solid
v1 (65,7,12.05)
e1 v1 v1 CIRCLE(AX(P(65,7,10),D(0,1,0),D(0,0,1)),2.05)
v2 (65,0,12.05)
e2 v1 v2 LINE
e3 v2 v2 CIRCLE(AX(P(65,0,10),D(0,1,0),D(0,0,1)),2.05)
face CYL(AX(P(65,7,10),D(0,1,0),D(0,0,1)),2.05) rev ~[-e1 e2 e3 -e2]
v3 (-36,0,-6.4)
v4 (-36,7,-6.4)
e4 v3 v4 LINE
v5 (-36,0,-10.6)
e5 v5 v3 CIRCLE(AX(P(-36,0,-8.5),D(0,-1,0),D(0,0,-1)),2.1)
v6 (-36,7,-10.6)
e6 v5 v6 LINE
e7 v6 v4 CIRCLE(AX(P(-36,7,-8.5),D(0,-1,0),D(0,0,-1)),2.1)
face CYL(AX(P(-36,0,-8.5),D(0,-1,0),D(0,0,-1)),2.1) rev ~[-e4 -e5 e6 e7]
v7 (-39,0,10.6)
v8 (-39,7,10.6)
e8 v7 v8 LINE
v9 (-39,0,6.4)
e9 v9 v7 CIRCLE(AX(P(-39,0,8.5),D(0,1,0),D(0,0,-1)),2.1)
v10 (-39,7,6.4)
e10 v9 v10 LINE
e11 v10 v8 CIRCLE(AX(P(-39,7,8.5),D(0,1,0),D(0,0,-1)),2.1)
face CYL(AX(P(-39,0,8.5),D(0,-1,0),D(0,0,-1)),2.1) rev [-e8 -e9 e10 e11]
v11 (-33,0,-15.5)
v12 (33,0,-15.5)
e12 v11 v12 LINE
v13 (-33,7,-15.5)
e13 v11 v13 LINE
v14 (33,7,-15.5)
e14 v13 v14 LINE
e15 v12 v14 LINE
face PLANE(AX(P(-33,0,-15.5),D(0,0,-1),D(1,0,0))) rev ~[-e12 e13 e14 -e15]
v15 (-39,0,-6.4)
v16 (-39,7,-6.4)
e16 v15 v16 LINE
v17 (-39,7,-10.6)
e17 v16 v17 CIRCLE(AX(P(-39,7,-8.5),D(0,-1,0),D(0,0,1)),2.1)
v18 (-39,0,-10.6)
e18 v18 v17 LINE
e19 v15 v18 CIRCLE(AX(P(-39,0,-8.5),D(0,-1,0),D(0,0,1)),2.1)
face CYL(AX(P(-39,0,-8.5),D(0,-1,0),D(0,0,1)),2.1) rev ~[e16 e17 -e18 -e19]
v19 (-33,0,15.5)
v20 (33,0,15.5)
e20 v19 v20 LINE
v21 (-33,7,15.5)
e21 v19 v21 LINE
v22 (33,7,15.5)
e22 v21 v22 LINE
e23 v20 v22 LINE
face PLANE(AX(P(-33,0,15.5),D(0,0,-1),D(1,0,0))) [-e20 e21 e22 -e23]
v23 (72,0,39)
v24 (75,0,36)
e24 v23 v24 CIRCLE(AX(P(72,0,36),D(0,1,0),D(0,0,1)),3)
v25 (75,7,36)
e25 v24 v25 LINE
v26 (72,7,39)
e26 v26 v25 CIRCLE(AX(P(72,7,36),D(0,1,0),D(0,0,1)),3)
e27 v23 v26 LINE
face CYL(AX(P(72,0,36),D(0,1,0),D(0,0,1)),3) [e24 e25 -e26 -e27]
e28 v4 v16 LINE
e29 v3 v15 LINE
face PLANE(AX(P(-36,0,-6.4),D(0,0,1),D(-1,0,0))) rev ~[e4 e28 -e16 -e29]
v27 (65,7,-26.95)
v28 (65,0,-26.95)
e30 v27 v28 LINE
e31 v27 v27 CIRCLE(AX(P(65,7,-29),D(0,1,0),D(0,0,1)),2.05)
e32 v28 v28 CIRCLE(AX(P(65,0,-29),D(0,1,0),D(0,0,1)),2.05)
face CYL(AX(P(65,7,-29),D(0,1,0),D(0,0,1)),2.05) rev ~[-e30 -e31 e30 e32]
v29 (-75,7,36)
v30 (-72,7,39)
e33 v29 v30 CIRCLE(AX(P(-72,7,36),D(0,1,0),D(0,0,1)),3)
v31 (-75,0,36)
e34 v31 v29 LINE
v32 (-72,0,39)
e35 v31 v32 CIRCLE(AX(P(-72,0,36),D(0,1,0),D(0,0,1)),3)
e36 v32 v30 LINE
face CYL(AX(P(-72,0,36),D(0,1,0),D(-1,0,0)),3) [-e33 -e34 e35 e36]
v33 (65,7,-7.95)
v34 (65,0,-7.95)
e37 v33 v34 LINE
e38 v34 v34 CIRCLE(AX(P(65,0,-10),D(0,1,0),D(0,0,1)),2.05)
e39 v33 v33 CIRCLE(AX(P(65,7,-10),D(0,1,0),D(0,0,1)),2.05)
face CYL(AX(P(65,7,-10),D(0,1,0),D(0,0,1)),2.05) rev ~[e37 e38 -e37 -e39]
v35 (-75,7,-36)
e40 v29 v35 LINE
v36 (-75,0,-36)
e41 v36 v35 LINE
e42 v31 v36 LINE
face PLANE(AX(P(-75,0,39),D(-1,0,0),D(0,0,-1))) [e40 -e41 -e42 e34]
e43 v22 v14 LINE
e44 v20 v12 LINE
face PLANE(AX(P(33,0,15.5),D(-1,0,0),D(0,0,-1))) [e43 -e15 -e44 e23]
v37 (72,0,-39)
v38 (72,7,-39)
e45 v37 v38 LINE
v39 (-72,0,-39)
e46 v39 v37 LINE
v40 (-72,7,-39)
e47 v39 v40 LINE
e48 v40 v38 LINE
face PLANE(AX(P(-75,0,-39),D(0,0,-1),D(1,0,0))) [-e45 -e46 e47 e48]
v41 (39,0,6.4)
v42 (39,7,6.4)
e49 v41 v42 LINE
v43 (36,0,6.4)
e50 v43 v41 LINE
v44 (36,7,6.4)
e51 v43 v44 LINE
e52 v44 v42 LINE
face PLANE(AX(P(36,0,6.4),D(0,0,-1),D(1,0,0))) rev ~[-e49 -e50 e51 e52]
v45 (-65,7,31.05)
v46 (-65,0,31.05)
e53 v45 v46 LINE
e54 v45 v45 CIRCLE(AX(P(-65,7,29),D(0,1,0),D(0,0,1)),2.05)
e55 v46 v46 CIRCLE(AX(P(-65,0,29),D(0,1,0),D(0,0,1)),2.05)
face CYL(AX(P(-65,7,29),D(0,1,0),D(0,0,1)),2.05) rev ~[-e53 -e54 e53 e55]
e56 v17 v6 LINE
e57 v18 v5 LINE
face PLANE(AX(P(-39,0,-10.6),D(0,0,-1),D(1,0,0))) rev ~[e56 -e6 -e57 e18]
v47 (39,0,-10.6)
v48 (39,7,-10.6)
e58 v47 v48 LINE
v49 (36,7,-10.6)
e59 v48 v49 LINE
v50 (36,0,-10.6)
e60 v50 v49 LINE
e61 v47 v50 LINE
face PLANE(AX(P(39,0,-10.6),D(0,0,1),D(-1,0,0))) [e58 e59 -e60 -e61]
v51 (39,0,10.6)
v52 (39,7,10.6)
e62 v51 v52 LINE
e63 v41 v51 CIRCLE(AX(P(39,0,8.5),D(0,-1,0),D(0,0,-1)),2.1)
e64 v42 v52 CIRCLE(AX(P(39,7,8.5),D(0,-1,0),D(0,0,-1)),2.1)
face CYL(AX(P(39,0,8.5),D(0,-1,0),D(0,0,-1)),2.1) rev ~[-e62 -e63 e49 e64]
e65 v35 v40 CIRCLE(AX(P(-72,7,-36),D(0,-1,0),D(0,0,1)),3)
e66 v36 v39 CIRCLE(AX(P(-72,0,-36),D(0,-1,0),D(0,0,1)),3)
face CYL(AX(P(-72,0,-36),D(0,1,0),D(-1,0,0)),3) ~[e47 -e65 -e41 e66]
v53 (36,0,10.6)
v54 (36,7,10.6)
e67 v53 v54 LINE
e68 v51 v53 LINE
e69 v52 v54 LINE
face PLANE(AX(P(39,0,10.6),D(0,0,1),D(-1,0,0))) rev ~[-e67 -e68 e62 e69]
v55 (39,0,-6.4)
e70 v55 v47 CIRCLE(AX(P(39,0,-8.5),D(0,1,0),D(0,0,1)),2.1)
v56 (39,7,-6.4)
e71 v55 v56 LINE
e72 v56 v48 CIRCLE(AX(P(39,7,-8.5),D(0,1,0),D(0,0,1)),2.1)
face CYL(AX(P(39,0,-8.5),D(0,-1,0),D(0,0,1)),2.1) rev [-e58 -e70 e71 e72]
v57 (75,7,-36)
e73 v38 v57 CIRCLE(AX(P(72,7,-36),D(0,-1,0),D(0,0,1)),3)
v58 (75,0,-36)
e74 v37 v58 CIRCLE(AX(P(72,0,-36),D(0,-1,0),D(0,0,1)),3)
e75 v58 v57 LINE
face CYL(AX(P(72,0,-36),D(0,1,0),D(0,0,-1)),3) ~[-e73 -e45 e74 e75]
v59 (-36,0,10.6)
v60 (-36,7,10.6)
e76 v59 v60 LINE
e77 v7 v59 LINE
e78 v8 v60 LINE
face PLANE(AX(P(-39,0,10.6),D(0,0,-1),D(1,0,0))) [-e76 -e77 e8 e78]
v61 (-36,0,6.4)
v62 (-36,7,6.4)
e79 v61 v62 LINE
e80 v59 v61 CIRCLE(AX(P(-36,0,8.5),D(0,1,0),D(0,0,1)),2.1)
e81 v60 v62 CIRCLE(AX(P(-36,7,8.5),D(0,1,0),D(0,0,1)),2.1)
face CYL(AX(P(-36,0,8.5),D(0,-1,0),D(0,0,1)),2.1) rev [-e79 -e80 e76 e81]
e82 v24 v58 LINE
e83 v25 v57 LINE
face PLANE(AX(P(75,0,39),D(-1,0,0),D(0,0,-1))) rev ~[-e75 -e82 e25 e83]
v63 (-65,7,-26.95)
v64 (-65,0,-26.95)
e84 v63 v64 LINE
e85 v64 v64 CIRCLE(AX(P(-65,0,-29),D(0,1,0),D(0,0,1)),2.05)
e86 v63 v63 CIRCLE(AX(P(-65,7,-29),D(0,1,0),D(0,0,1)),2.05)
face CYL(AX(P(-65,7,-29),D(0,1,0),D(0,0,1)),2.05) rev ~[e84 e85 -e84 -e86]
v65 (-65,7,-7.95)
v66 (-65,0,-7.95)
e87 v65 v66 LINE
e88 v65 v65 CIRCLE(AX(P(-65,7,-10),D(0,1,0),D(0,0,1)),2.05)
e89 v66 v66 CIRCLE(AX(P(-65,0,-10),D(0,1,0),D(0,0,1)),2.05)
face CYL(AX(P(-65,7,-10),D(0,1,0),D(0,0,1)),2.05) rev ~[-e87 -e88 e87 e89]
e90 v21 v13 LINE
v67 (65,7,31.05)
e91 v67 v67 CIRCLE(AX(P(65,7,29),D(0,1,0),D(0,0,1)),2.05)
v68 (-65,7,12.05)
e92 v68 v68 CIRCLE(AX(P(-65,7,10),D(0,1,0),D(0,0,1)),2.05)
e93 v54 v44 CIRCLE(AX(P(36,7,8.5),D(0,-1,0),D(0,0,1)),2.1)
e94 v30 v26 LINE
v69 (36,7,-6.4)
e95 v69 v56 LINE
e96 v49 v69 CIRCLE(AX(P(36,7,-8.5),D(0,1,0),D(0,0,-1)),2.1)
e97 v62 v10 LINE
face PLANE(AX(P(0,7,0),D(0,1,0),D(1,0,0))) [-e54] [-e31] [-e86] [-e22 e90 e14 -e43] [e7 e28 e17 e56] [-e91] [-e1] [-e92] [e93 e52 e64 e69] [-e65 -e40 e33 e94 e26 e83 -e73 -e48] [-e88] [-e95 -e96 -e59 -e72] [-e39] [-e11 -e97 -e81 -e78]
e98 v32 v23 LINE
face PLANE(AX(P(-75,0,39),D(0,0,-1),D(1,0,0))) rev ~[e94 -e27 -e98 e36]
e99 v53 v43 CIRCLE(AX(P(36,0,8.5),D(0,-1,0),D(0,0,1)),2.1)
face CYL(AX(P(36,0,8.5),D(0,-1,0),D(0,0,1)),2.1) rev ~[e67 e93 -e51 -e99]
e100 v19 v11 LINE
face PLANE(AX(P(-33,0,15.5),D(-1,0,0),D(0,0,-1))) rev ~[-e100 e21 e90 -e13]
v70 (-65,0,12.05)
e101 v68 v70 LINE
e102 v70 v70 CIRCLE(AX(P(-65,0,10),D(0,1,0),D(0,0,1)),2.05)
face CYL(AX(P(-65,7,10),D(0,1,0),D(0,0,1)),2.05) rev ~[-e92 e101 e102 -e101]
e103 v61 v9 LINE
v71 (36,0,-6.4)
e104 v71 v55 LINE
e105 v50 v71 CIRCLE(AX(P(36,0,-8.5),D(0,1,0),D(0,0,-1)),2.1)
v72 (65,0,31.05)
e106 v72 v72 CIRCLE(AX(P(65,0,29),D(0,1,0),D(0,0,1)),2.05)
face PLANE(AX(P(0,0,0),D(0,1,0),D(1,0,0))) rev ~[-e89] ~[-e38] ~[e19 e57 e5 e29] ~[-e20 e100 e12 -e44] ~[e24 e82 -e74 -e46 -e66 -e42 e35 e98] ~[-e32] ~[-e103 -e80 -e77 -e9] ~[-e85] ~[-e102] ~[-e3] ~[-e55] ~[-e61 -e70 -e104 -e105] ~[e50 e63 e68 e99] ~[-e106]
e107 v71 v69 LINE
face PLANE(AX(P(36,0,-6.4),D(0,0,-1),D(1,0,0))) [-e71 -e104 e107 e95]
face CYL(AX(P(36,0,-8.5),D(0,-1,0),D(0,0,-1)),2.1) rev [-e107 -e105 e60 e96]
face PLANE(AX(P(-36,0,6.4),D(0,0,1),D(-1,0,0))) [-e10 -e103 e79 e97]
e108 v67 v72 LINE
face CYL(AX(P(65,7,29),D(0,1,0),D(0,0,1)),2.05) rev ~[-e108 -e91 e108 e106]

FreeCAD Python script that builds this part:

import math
import FreeCAD as App
import Part
import Sketcher
from FreeCAD import Vector


def edges_at(feature, points):
    """Names of the edges that pass closest to the given points."""
    edges = feature.Shape.Edges
    near = lambda p: min(range(len(edges)), key=lambda i: edges[i].distToShape(Part.Vertex(*p))[0])
    return sorted({f"Edge{near(p) + 1}" for p in points})

doc = App.newDocument("Part")
body = doc.addObject("PartDesign::Body", "Body")

# Sketch on XZ plane
sketch1 = body.newObject("Sketcher::SketchObject", "Sketch")
sketch1.AttachmentSupport = (doc.getObject("XZ_Plane"), [""])
sketch1.MapMode = "FlatFace"
sketch1.addGeometry(Part.LineSegment(Vector(-75, -39, 0), Vector(-75, 39, 0)), False)
sketch1.addGeometry(Part.LineSegment(Vector(-75, 39, 0), Vector(75, 39, 0)), False)
sketch1.addGeometry(Part.LineSegment(Vector(75, 39, 0), Vector(75, -39, 0)), False)
sketch1.addGeometry(Part.LineSegment(Vector(75, -39, 0), Vector(-75, -39, 0)), False)
sketch1.addGeometry(Part.LineSegment(Vector(-36, 10.6, 0), Vector(-39, 10.6, 0)), False)
sketch1.addGeometry(Part.ArcOfCircle(Part.Circle(Vector(-39, 8.5, 0), Vector(0, 0, 1), 2.1), math.radians(90), math.radians(270)), False)
sketch1.addGeometry(Part.LineSegment(Vector(-39, 6.4, 0), Vector(-36, 6.4, 0)), False)
sketch1.addGeometry(Part.ArcOfCircle(Part.Circle(Vector(-36, 8.5, 0), Vector(0, 0, 1), 2.1), math.radians(-90), math.radians(90)), False)
sketch1.addGeometry(Part.ArcOfCircle(Part.Circle(Vector(39, 8.5, 0), Vector(0, 0, 1), 2.1), math.radians(-90), math.radians(90)), False)
sketch1.addGeometry(Part.LineSegment(Vector(39, 10.6, 0), Vector(36, 10.6, 0)), False)
sketch1.addGeometry(Part.ArcOfCircle(Part.Circle(Vector(36, 8.5, 0), Vector(0, 0, 1), 2.1), math.radians(90), math.radians(270)), False)
sketch1.addGeometry(Part.LineSegment(Vector(36, 6.4, 0), Vector(39, 6.4, 0)), False)
sketch1.addGeometry(Part.ArcOfCircle(Part.Circle(Vector(-39, -8.5, 0), Vector(0, 0, 1), 2.1), math.radians(90), math.radians(270)), False)
sketch1.addGeometry(Part.LineSegment(Vector(-39, -10.6, 0), Vector(-36, -10.6, 0)), False)
sketch1.addGeometry(Part.ArcOfCircle(Part.Circle(Vector(-36, -8.5, 0), Vector(0, 0, 1), 2.1), math.radians(-90), math.radians(90)), False)
sketch1.addGeometry(Part.LineSegment(Vector(-36, -6.4, 0), Vector(-39, -6.4, 0)), False)
sketch1.addGeometry(Part.LineSegment(Vector(33, 15.5, 0), Vector(-33, 15.5, 0)), False)
sketch1.addGeometry(Part.LineSegment(Vector(-33, 15.5, 0), Vector(-33, -15.5, 0)), False)
sketch1.addGeometry(Part.LineSegment(Vector(-33, -15.5, 0), Vector(33, -15.5, 0)), False)
sketch1.addGeometry(Part.LineSegment(Vector(33, -15.5, 0), Vector(33, 15.5, 0)), False)
sketch1.addGeometry(Part.LineSegment(Vector(36, -10.6, 0), Vector(39, -10.6, 0)), False)
sketch1.addGeometry(Part.ArcOfCircle(Part.Circle(Vector(39, -8.5, 0), Vector(0, 0, 1), 2.1), math.radians(-90), math.radians(90)), False)
sketch1.addGeometry(Part.LineSegment(Vector(39, -6.4, 0), Vector(36, -6.4, 0)), False)
sketch1.addGeometry(Part.ArcOfCircle(Part.Circle(Vector(36, -8.5, 0), Vector(0, 0, 1), 2.1), math.radians(90), math.radians(270)), False)
sketch1.addConstraint(Sketcher.Constraint("Coincident", 0, 2, 1, 1))
sketch1.addConstraint(Sketcher.Constraint("Coincident", 1, 2, 2, 1))
sketch1.addConstraint(Sketcher.Constraint("Coincident", 2, 2, 3, 1))
sketch1.addConstraint(Sketcher.Constraint("Coincident", 3, 2, 0, 1))
sketch1.addConstraint(Sketcher.Constraint("Tangent", 4, 2, 5, 1))
sketch1.addConstraint(Sketcher.Constraint("Tangent", 5, 2, 6, 1))
sketch1.addConstraint(Sketcher.Constraint("Tangent", 6, 2, 7, 1))
sketch1.addConstraint(Sketcher.Constraint("Tangent", 7, 2, 4, 1))
sketch1.addConstraint(Sketcher.Constraint("Tangent", 8, 2, 9, 1))
sketch1.addConstraint(Sketcher.Constraint("Tangent", 9, 2, 10, 1))
sketch1.addConstraint(Sketcher.Constraint("Tangent", 10, 2, 11, 1))
sketch1.addConstraint(Sketcher.Constraint("Tangent", 11, 2, 8, 1))
sketch1.addConstraint(Sketcher.Constraint("Tangent", 12, 2, 13, 1))
sketch1.addConstraint(Sketcher.Constraint("Tangent", 13, 2, 14, 1))
sketch1.addConstraint(Sketcher.Constraint("Tangent", 14, 2, 15, 1))
sketch1.addConstraint(Sketcher.Constraint("Tangent", 15, 2, 12, 1))
sketch1.addConstraint(Sketcher.Constraint("Coincident", 16, 2, 17, 1))
sketch1.addConstraint(Sketcher.Constraint("Coincident", 17, 2, 18, 1))
sketch1.addConstraint(Sketcher.Constraint("Coincident", 18, 2, 19, 1))
sketch1.addConstraint(Sketcher.Constraint("Coincident", 19, 2, 16, 1))
sketch1.addConstraint(Sketcher.Constraint("Tangent", 20, 2, 21, 1))
sketch1.addConstraint(Sketcher.Constraint("Tangent", 21, 2, 22, 1))
sketch1.addConstraint(Sketcher.Constraint("Tangent", 22, 2, 23, 1))
sketch1.addConstraint(Sketcher.Constraint("Tangent", 23, 2, 20, 1))
sketch1.addConstraint(Sketcher.Constraint("Vertical", 0))
sketch1.addConstraint(Sketcher.Constraint("Horizontal", 1))
sketch1.addConstraint(Sketcher.Constraint("Vertical", 2))
sketch1.addConstraint(Sketcher.Constraint("Horizontal", 3))
sketch1.addConstraint(Sketcher.Constraint("Horizontal", 4))
sketch1.addConstraint(Sketcher.Constraint("Horizontal", 6))
sketch1.addConstraint(Sketcher.Constraint("Horizontal", 9))
sketch1.addConstraint(Sketcher.Constraint("Horizontal", 11))
sketch1.addConstraint(Sketcher.Constraint("Horizontal", 13))
sketch1.addConstraint(Sketcher.Constraint("Horizontal", 15))
sketch1.addConstraint(Sketcher.Constraint("Horizontal", 16))
sketch1.addConstraint(Sketcher.Constraint("Vertical", 17))
sketch1.addConstraint(Sketcher.Constraint("Horizontal", 18))
sketch1.addConstraint(Sketcher.Constraint("Vertical", 19))
sketch1.addConstraint(Sketcher.Constraint("Horizontal", 20))
sketch1.addConstraint(Sketcher.Constraint("Horizontal", 22))
sketch1.addConstraint(Sketcher.Constraint("Equal", 7, 8))
sketch1.addConstraint(Sketcher.Constraint("Equal", 10, 12))
sketch1.addConstraint(Sketcher.Constraint("Equal", 14, 21))
sketch1.addConstraint(Sketcher.Constraint("Symmetric", 8, 3, 12, 3, -1, 1))
sketch1.addConstraint(Sketcher.Constraint("Symmetric", 5, 3, 21, 3, -1, 1))
sketch1.addConstraint(Sketcher.Constraint("Symmetric", 0, 2, 2, 2, -1, 1))
sketch1.addConstraint(Sketcher.Constraint("Symmetric", 16, 2, 18, 2, -1, 1))
sketch1.addConstraint(Sketcher.Constraint("Symmetric", 5, 3, 8, 3, -2))
sketch1.addConstraint(Sketcher.Constraint("Vertical", 7, 3, 14, 3))
sketch1.addConstraint(Sketcher.Constraint("Vertical", 10, 3, 23, 3))
sketch1.addConstraint(Sketcher.Constraint("Equal", 6, 9))
sketch1.addConstraint(Sketcher.Constraint("Radius", 5, 2.1))
sketch1.addConstraint(Sketcher.Constraint("DistanceX", 1, 1, 1, 2, 150.0))
sketch1.addConstraint(Sketcher.Constraint("DistanceX", 4, 2, 4, 1, 3.0))
sketch1.addConstraint(Sketcher.Constraint("DistanceX", 16, 2, 16, 1, 66.0))
sketch1.addConstraint(Sketcher.Constraint("DistanceY", 0, 1, 0, 2, 78.0))
sketch1.addConstraint(Sketcher.Constraint("DistanceY", 17, 2, 17, 1, 31.0))
sketch1.addConstraint(Sketcher.Constraint("DistanceX", 5, 3, -1, 1, 39.0))
sketch1.addConstraint(Sketcher.Constraint("DistanceY", 12, 3, 5, 3, 17.0))
pad1 = body.newObject("PartDesign::Pad", "Pad")
pad1.Profile = sketch1
pad1.Length = 7
pad1.Reversed = True
doc.recompute()

fillet = body.newObject("PartDesign::Fillet", "Fillet")
fillet.Base = (pad1, edges_at(pad1, [
    (75, 3.5, 39),
    (-75, 3.5, 39),
    (-75, 3.5, -39),
    (75, 3.5, -39),
]))
fillet.Radius = 3

# Sketch on XZ plane
sketch2 = body.newObject("Sketcher::SketchObject", "Sketch001")
sketch2.AttachmentSupport = (doc.getObject("XZ_Plane"), [""])
sketch2.MapMode = "FlatFace"
sketch2.AttachmentOffset = App.Placement(Vector(0, 0, -7), App.Rotation())
sketch2.addGeometry(Part.Circle(Vector(-65, -10, 0), Vector(0, 0, 1), 2.05), False)
sketch2.addGeometry(Part.Circle(Vector(-65, -29, 0), Vector(0, 0, 1), 2.05), False)
sketch2.addGeometry(Part.Circle(Vector(-65, 10, 0), Vector(0, 0, 1), 2.05), False)
sketch2.addGeometry(Part.Circle(Vector(-65, 29, 0), Vector(0, 0, 1), 2.05), False)
sketch2.addGeometry(Part.Circle(Vector(65, 29, 0), Vector(0, 0, 1), 2.05), False)
sketch2.addGeometry(Part.Circle(Vector(65, 10, 0), Vector(0, 0, 1), 2.05), False)
sketch2.addGeometry(Part.Circle(Vector(65, -10, 0), Vector(0, 0, 1), 2.05), False)
sketch2.addGeometry(Part.Circle(Vector(65, -29, 0), Vector(0, 0, 1), 2.05), False)
sketch2.addConstraint(Sketcher.Constraint("Equal", 0, 1))
sketch2.addConstraint(Sketcher.Constraint("Equal", 1, 2))
sketch2.addConstraint(Sketcher.Constraint("Equal", 2, 3))
sketch2.addConstraint(Sketcher.Constraint("Equal", 3, 4))
sketch2.addConstraint(Sketcher.Constraint("Equal", 4, 5))
sketch2.addConstraint(Sketcher.Constraint("Equal", 5, 6))
sketch2.addConstraint(Sketcher.Constraint("Equal", 6, 7))
sketch2.addConstraint(Sketcher.Constraint("Symmetric", 1, 3, 4, 3, -1, 1))
sketch2.addConstraint(Sketcher.Constraint("Symmetric", 0, 3, 5, 3, -1, 1))
sketch2.addConstraint(Sketcher.Constraint("Symmetric", 2, 3, 6, 3, -1, 1))
sketch2.addConstraint(Sketcher.Constraint("Symmetric", 3, 3, 7, 3, -1, 1))
sketch2.addConstraint(Sketcher.Constraint("Symmetric", 3, 3, 4, 3, -2))
sketch2.addConstraint(Sketcher.Constraint("Symmetric", 2, 3, 5, 3, -2))
sketch2.addConstraint(Sketcher.Constraint("Vertical", 0, 3, 1, 3))
sketch2.addConstraint(Sketcher.Constraint("Diameter", 0, 4.1))
sketch2.addConstraint(Sketcher.Constraint("DistanceX", 0, 3, -1, 1, 65.0))
sketch2.addConstraint(Sketcher.Constraint("DistanceY", 0, 3, -1, 1, 10.0))
sketch2.addConstraint(Sketcher.Constraint("DistanceY", 1, 3, -1, 1, 29.0))
pocket1 = body.newObject("PartDesign::Pocket", "Pocket")
pocket1.Profile = sketch2
pocket1.Length = 10
pocket1.Reversed = True

doc.recompute()
